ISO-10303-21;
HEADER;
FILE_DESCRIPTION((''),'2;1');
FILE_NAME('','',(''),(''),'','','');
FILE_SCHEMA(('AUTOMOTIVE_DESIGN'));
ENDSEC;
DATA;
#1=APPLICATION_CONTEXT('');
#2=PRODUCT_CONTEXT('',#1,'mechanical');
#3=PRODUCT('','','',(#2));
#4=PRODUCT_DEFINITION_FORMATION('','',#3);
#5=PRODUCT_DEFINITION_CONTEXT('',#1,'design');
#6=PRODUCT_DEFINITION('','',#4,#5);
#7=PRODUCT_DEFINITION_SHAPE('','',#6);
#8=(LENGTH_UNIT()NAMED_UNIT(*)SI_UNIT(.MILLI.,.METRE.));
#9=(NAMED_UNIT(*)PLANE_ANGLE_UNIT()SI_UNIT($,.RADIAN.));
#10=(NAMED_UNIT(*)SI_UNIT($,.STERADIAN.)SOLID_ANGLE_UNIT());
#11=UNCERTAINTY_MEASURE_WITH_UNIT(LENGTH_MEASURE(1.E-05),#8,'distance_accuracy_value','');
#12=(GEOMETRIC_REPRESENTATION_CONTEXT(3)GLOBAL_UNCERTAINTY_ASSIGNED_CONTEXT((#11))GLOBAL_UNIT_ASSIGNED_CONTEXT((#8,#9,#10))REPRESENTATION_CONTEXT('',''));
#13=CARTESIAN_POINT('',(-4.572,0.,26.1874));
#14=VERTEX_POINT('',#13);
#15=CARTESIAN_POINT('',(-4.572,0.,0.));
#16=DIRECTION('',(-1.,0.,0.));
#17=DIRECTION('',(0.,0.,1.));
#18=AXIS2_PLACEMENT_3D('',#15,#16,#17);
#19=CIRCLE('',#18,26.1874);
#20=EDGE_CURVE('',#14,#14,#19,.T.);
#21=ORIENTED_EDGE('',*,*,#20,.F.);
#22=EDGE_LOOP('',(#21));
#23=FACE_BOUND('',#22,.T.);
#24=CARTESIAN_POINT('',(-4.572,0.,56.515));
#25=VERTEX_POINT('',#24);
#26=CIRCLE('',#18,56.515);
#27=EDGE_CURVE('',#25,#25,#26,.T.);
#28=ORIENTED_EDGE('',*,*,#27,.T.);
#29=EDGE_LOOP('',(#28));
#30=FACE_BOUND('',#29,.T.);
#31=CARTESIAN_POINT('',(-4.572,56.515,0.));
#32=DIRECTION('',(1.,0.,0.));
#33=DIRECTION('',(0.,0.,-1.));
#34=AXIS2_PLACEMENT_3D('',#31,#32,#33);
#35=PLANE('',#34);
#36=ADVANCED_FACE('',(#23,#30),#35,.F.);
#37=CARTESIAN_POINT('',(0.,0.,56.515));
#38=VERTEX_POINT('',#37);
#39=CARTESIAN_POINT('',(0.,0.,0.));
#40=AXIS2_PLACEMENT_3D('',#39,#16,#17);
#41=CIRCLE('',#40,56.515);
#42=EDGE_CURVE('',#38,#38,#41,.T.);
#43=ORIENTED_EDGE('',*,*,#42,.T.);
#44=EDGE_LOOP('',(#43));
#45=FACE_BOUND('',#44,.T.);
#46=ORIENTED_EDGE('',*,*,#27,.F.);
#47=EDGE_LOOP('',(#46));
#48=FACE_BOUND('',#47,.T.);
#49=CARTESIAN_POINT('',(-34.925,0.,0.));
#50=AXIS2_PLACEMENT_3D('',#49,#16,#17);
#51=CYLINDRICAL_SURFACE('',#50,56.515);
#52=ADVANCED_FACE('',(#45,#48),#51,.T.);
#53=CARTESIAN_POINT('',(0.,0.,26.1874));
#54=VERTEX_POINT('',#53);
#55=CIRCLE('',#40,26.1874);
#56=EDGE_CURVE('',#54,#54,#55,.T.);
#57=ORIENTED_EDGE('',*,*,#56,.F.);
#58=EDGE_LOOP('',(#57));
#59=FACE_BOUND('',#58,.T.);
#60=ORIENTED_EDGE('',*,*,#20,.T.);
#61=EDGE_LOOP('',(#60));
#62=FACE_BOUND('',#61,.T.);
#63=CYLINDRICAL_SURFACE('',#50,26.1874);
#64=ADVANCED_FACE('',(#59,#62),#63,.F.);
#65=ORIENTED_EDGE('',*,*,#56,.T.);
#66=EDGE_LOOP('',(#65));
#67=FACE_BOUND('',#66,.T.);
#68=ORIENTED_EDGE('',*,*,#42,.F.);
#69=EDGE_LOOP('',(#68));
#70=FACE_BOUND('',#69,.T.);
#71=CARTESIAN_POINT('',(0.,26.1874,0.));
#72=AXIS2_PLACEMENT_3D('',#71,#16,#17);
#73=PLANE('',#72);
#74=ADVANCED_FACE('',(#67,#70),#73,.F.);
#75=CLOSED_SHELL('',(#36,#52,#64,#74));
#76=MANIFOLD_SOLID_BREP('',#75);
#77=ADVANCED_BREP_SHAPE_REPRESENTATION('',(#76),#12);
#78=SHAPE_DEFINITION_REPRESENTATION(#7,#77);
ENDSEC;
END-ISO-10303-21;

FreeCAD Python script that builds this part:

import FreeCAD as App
import Part
import Sketcher
from FreeCAD import Vector
Q = App.Units.Quantity

doc = App.newDocument("Part")
body = doc.addObject("PartDesign::Body", "Body")

# Sketch on XY plane
sketch1 = doc.addObject("Sketcher::SketchObject", "Sketch")
body.addObject(sketch1)
sketch1.AttachmentSupport = (doc.XY_Plane, [""])
sketch1.MapMode = "FlatFace"
sketch1.addGeometry([
    Part.LineSegment(Vector(-4.572, 56.515, 0), Vector(-4.572, 26.1874, 0)),
    Part.LineSegment(Vector(-4.572, 26.1874, 0), Vector(0, 26.1874, 0)),
    Part.LineSegment(Vector(0, 26.1874, 0), Vector(0, 56.515, 0)),
    Part.LineSegment(Vector(0, 56.515, 0), Vector(-4.572, 56.515, 0)),
], False)
sketch1.addConstraint([
    Sketcher.Constraint("Coincident", 0, 2, 1, 1),
    Sketcher.Constraint("Coincident", 1, 2, 2, 1),
    Sketcher.Constraint("Coincident", 2, 2, 3, 1),
    Sketcher.Constraint("Coincident", 3, 2, 0, 1),
    Sketcher.Constraint("Vertical", 0),
    Sketcher.Constraint("Horizontal", 1),
    Sketcher.Constraint("Vertical", 2),
    Sketcher.Constraint("Horizontal", 3),
    Sketcher.Constraint("PointOnObject", 1, 2, -2),
    Sketcher.Constraint("DistanceX", 1, 1, 1, 2, Q("0.18 in")),
    Sketcher.Constraint("DistanceY", 0, 2, 0, 1, Q("1.194 in")),
    Sketcher.Constraint("DistanceY", -1, 1, 0, 2, Q("1.031 in")),
])
revolution = doc.addObject("PartDesign::Revolution", "Revolution")
body.addObject(revolution)
revolution.Profile = sketch1
revolution.ReferenceAxis = (sketch1, ["H_Axis"])
revolution.Angle = 360

doc.recompute()
